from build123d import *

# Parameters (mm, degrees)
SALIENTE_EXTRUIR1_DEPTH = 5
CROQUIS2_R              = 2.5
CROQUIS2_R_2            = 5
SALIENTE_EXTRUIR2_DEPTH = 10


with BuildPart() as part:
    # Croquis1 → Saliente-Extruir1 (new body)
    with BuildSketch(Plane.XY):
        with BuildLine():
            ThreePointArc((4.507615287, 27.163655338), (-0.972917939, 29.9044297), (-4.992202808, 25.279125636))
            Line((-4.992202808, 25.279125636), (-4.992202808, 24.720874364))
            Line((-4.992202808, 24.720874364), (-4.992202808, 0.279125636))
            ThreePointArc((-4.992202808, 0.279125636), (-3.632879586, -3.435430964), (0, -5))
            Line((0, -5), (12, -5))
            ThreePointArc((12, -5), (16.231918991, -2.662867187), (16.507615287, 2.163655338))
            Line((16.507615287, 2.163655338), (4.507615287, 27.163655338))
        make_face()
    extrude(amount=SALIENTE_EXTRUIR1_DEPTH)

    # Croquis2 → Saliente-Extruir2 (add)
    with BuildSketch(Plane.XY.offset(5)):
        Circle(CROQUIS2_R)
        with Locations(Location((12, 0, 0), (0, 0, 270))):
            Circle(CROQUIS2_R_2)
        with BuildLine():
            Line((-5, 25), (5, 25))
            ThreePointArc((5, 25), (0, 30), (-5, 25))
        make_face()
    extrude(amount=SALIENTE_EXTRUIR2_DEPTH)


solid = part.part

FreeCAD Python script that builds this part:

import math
import FreeCAD as App
import Part
import Sketcher
from FreeCAD import Vector

doc = App.newDocument("Part")
body = doc.addObject("PartDesign::Body", "Body")

sketch1 = body.newObject("Sketcher::SketchObject", "Sketch")
sketch1.AttachmentSupport = (doc.getObject("XY_Plane"), [""])
sketch1.MapMode = "FlatFace"
sketch1.addGeometry([
    Part.ArcOfCircle(Part.Circle(Vector(0, 25, 0), Vector(0, 0, 1), 5), math.radians(25.641006), math.radians(176.799792)),
    Part.LineSegment(Vector(-4.992203, 25.279126, 0), Vector(-4.992203, 0.279126, 0)),
    Part.ArcOfCircle(Part.Circle(Vector(0, 0, 0), Vector(0, 0, 1), 5), math.radians(176.799792), math.radians(270)),
    Part.LineSegment(Vector(0, -5, 0), Vector(12, -5, 0)),
    Part.ArcOfCircle(Part.Circle(Vector(12, 0, 0), Vector(0, 0, 1), 5), math.radians(-90), math.radians(25.641006)),
    Part.LineSegment(Vector(16.507615, 2.163655, 0), Vector(4.507615, 27.163655, 0)),
], False)
sketch1.addConstraint([
    Sketcher.Constraint("Coincident", 0, 2, 1, 1),
    Sketcher.Constraint("Coincident", 1, 2, 2, 1),
    Sketcher.Constraint("Tangent", 2, 2, 3, 1),
    Sketcher.Constraint("Tangent", 3, 2, 4, 1),
    Sketcher.Constraint("Tangent", 4, 2, 5, 1),
    Sketcher.Constraint("Tangent", 5, 2, 0, 1),
    Sketcher.Constraint("Vertical", 1),
    Sketcher.Constraint("Horizontal", 3),
    Sketcher.Constraint("Coincident", 2, 3, -1, 1),
    Sketcher.Constraint("Equal", 0, 2),
    Sketcher.Constraint("Equal", 2, 4),
    Sketcher.Constraint("PointOnObject", 0, 3, -2),
    Sketcher.Constraint("Radius", 0, 5.0),
    Sketcher.Constraint("DistanceX", 3, 1, 3, 2, 12.0),
    Sketcher.Constraint("DistanceY", 1, 2, 1, 1, 25.0),
    Sketcher.Constraint("DistanceX", 1, 2, 4, 2, 21.499818),
])
pad1 = body.newObject("PartDesign::Pad", "Pad")
pad1.Profile = sketch1
pad1.Length = 5

sketch2 = body.newObject("Sketcher::SketchObject", "Sketch001")
sketch2.AttachmentSupport = (doc.getObject("XY_Plane"), [""])
sketch2.MapMode = "FlatFace"
sketch2.AttachmentOffset = App.Placement(Vector(0, 0, 5), App.Rotation())
sketch2.addGeometry([
    Part.Circle(Vector(0, 0, 0), Vector(0, 0, 1), 2.5),
    Part.Circle(Vector(12, 0, 0), Vector(0, 0, 1), 5),
    Part.LineSegment(Vector(-5, 25, 0), Vector(5, 25, 0)),
    Part.ArcOfCircle(Part.Circle(Vector(0, 25, 0), Vector(0, 0, 1), 5), math.radians(0), math.radians(180)),
], False)
sketch2.addConstraint([
    Sketcher.Constraint("Coincident", 2, 1, 3, 2),
    Sketcher.Constraint("Coincident", 3, 1, 2, 2),
    Sketcher.Constraint("Horizontal", 2),
    Sketcher.Constraint("Coincident", 0, 3, -1, 1),
    Sketcher.Constraint("Equal", 1, 3),
    Sketcher.Constraint("PointOnObject", 1, 3, -1),
    Sketcher.Constraint("PointOnObject", 3, 3, -2),
    Sketcher.Constraint("Horizontal", 3, 3, 2, 1),
    Sketcher.Constraint("Diameter", 0, 5.0),
    Sketcher.Constraint("Diameter", 1, 10.0),
    Sketcher.Constraint("DistanceX", -1, 1, 1, 3, 12.0),
    Sketcher.Constraint("DistanceY", -1, 1, 3, 3, 25.0),
])
pad2 = body.newObject("PartDesign::Pad", "Pad001")
pad2.Profile = sketch2
pad2.Length = 10

doc.recompute()
